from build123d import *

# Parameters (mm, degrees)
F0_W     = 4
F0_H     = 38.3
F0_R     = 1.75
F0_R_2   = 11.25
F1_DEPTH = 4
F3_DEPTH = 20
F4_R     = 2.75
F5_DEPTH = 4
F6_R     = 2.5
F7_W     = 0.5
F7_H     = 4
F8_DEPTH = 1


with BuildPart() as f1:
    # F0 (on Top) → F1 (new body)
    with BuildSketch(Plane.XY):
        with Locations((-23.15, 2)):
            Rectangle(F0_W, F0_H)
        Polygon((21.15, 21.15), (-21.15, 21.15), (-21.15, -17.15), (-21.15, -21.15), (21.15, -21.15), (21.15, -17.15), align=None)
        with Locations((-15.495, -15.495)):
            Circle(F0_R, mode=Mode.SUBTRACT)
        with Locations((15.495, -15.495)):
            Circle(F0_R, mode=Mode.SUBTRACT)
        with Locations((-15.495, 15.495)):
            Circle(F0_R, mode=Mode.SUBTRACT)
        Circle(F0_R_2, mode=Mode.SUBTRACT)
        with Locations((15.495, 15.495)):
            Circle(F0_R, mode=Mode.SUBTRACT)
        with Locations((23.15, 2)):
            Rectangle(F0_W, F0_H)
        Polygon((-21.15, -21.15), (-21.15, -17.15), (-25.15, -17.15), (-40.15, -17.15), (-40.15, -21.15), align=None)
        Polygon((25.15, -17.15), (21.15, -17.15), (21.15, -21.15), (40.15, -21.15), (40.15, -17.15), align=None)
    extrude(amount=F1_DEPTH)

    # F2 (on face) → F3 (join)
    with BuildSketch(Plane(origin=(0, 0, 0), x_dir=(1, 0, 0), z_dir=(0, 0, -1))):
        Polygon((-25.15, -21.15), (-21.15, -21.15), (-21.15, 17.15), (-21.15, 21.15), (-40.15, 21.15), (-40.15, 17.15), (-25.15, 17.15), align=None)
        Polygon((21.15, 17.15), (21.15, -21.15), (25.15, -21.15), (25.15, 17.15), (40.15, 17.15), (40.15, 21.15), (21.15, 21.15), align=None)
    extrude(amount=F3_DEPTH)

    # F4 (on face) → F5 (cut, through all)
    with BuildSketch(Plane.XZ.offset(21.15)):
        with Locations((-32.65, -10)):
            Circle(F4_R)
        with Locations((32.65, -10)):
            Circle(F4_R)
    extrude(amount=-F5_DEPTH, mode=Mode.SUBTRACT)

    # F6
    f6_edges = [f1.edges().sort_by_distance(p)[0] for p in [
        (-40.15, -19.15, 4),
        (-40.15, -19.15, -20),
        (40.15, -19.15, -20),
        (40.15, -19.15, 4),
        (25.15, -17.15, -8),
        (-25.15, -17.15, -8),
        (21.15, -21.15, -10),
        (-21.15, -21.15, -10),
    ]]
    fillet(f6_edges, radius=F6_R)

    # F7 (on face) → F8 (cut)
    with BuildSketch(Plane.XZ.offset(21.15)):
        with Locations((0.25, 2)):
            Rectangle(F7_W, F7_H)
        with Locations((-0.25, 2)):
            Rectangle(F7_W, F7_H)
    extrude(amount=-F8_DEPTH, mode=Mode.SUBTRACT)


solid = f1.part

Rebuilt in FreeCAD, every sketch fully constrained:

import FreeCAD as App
import Part
import Sketcher


def edges_at(feature, points):
    """Names of the edges that pass closest to the given points."""
    edges = feature.Shape.Edges
    near = lambda p: min(range(len(edges)), key=lambda i: edges[i].distToShape(Part.Vertex(*p))[0])
    return sorted({f"Edge{near(p) + 1}" for p in points})


def add_polygon(sketch, points):
    """Adds a closed chain of lines whose ends are joined by coincident constraints."""
    first, n = sketch.GeometryCount, len(points)
    for a, b in zip(points, points[1:] + points[:1]):
        sketch.addGeometry(Part.LineSegment(App.Vector(*a, 0), App.Vector(*b, 0)), False)
    for i in range(n):
        sketch.addConstraint(Sketcher.Constraint("Coincident", first + i, 2, first + (i + 1) % n, 1))

doc = App.newDocument("Part")
params = doc.addObject("Spreadsheet::Sheet", "Params")
for row, (alias, value) in enumerate([
    ("sketch1_diameter", "3.5 mm"),
    ("sketch1_diameter2", "22.5 mm"),
    ("sketch1_width", "15 mm"),
    ("sketch1_height", "4 mm"),
    ("sketch1_width2", "80.3 mm"),
    ("pad1_length", "4 mm"),
    ("sketch2_width", "4 mm"),
    ("sketch2_width2", "19 mm"),
    ("sketch2_height", "42.3 mm"),
    ("pad2_length", "20 mm"),
    ("sketch3_diameter", "5.5 mm"),
    ("fillet_radius", "2.5 mm"),
    ("sketch4_width", "1 mm"),
    ("sketch4_height", "4 mm"),
    ("pocket2_length", "1 mm"),
], start=1):
    params.set(f"A{row}", alias)
    params.set(f"B{row}", "=" + value)
    params.setAlias(f"B{row}", alias)

body = doc.addObject("PartDesign::Body", "Body")

# Sketch on XY plane
sketch1 = body.newObject("Sketcher::SketchObject", "Sketch")
sketch1.AttachmentSupport = (doc.getObject("XY_Plane"), [""])
sketch1.MapMode = "FlatFace"
add_polygon(sketch1, [(-25.15, 21.15), (-25.15, -17.15), (-40.15, -17.15), (-40.15, -21.15), (40.15, -21.15), (40.15, -17.15), (25.15, -17.15), (25.15, 21.15)])  # lines 0-7
sketch1.addGeometry(Part.Circle(App.Vector(-15.495, -15.495, 0), App.Vector(0, 0, 1), 1.75), False)  # 8
sketch1.addGeometry(Part.Circle(App.Vector(15.495, -15.495, 0), App.Vector(0, 0, 1), 1.75), False)  # 9
sketch1.addGeometry(Part.Circle(App.Vector(-15.495, 15.495, 0), App.Vector(0, 0, 1), 1.75), False)  # 10
sketch1.addGeometry(Part.Circle(App.Vector(0, 0, 0), App.Vector(0, 0, 1), 11.25), False)  # 11
sketch1.addGeometry(Part.Circle(App.Vector(15.495, 15.495, 0), App.Vector(0, 0, 1), 1.75), False)  # 12
sketch1.addConstraint([
    Sketcher.Constraint("Vertical", 0),
    Sketcher.Constraint("Horizontal", 1),
    Sketcher.Constraint("Vertical", 2),
    Sketcher.Constraint("Horizontal", 3),
    Sketcher.Constraint("Vertical", 4),
    Sketcher.Constraint("Horizontal", 5),
    Sketcher.Constraint("Vertical", 6),
    Sketcher.Constraint("Horizontal", 7),
    Sketcher.Constraint("Coincident", 11, 3, -1, 1),
    Sketcher.Constraint("Equal", 8, 9),
    Sketcher.Constraint("Equal", 9, 10),
    Sketcher.Constraint("Equal", 10, 12),
    Sketcher.Constraint("Symmetric", 9, 3, 10, 3, -1, 1),
    Sketcher.Constraint("Symmetric", 8, 3, 12, 3, -1, 1),
    Sketcher.Constraint("Symmetric", 8, 3, 9, 3, -2),
    Sketcher.Constraint("Symmetric", 1, 2, 4, 2, -2),
    Sketcher.Constraint("Equal", 1, 5),
    Sketcher.Constraint("Diameter", 8, 3.5),
    Sketcher.Constraint("Diameter", 11, 22.5),
    Sketcher.Constraint("DistanceX", 1, 2, 1, 1, 15.0),
    Sketcher.Constraint("DistanceY", 2, 2, 2, 1, 4.0),
    Sketcher.Constraint("DistanceX", 3, 1, 3, 2, 80.3),
    Sketcher.Constraint("DistanceY", 0, 2, 0, 1, 38.3),
    Sketcher.Constraint("DistanceY", 0, 2, -1, 1, 17.15),
    Sketcher.Constraint("DistanceX", 8, 3, 9, 3, 30.99),
    Sketcher.Constraint("DistanceY", 8, 3, 10, 3, 30.99),
])
sketch1.setExpression("Constraints[25]", "Params.sketch1_diameter")
sketch1.setExpression("Constraints[26]", "Params.sketch1_diameter2")
sketch1.setExpression("Constraints[27]", "Params.sketch1_width")
sketch1.setExpression("Constraints[28]", "Params.sketch1_height")
sketch1.setExpression("Constraints[29]", "Params.sketch1_width2")
pad1 = body.newObject("PartDesign::Pad", "Pad")
pad1.Profile = sketch1
pad1.setExpression("Length", "Params.pad1_length")

# Sketch on XY plane
sketch2 = body.newObject("Sketcher::SketchObject", "Sketch001")
sketch2.AttachmentSupport = (doc.getObject("XY_Plane"), [""])
sketch2.MapMode = "FlatFace"
add_polygon(sketch2, [(-25.15, 21.15), (-21.15, 21.15), (-21.15, -21.15), (-40.15, -21.15), (-40.15, -17.15), (-25.15, -17.15)])  # lines 0-5
add_polygon(sketch2, [(21.15, 21.15), (25.15, 21.15), (25.15, -17.15), (40.15, -17.15), (40.15, -21.15), (21.15, -21.15)])  # lines 6-11
sketch2.addConstraint([
    Sketcher.Constraint("Horizontal", 0),
    Sketcher.Constraint("Vertical", 1),
    Sketcher.Constraint("Horizontal", 2),
    Sketcher.Constraint("Vertical", 3),
    Sketcher.Constraint("Horizontal", 4),
    Sketcher.Constraint("Vertical", 5),
    Sketcher.Constraint("Horizontal", 6),
    Sketcher.Constraint("Vertical", 7),
    Sketcher.Constraint("Horizontal", 8),
    Sketcher.Constraint("Vertical", 9),
    Sketcher.Constraint("Horizontal", 10),
    Sketcher.Constraint("Vertical", 11),
    Sketcher.Constraint("Symmetric", 0, 2, 10, 2, -1, 1),
    Sketcher.Constraint("Symmetric", 5, 2, 6, 2, -2),
    Sketcher.Constraint("Symmetric", 3, 2, 8, 2, -2),
    Sketcher.Constraint("Horizontal", 2, 2, 9, 2),
    Sketcher.Constraint("Equal", 6, 3),
    Sketcher.Constraint("DistanceX", 0, 1, 0, 2, 4.0),
    Sketcher.Constraint("DistanceX", 2, 2, 2, 1, 19.0),
    Sketcher.Constraint("DistanceY", 1, 2, 1, 1, 42.3),
    Sketcher.Constraint("DistanceX", 0, 2, 6, 2, 46.3),
])
sketch2.setExpression("Constraints[29]", "Params.sketch2_width")
sketch2.setExpression("Constraints[30]", "Params.sketch2_width2")
sketch2.setExpression("Constraints[31]", "Params.sketch2_height")
pad2 = body.newObject("PartDesign::Pad", "Pad001")
pad2.Profile = sketch2
pad2.setExpression("Length", "Params.pad2_length")
pad2.Reversed = True

# Sketch on XZ plane
sketch3 = body.newObject("Sketcher::SketchObject", "Sketch002")
sketch3.AttachmentSupport = (doc.getObject("XZ_Plane"), [""])
sketch3.MapMode = "FlatFace"
sketch3.AttachmentOffset = App.Placement(App.Vector(0, 0, 21.15), App.Rotation())
sketch3.addGeometry([
    Part.Circle(App.Vector(-32.65, -10, 0), App.Vector(0, 0, 1), 2.75),
    Part.Circle(App.Vector(32.65, -10, 0), App.Vector(0, 0, 1), 2.75),
], False)
sketch3.addConstraint([
    Sketcher.Constraint("Equal", 0, 1),
    Sketcher.Constraint("Symmetric", 0, 3, 1, 3, -2),
    Sketcher.Constraint("Diameter", 0, 5.5),
    Sketcher.Constraint("DistanceY", 0, 3, -1, 1, 10.0),
    Sketcher.Constraint("DistanceX", 0, 3, 1, 3, 65.3),
])
sketch3.setExpression("Constraints[2]", "Params.sketch3_diameter")
pocket1 = body.newObject("PartDesign::Pocket", "Pocket")
pocket1.Profile = sketch3
pocket1.Type = "ThroughAll"
doc.recompute()

fillet = body.newObject("PartDesign::Fillet", "Fillet")
fillet.Base = (pocket1, edges_at(pocket1, [
    (-40.15, -19.15, 4),
    (-40.15, -19.15, -20),
    (40.15, -19.15, -20),
    (40.15, -19.15, 4),
    (25.15, -17.15, -8),
    (-25.15, -17.15, -8),
    (21.15, -21.15, -10),
    (-21.15, -21.15, -10),
]))
fillet.setExpression("Radius", "Params.fillet_radius")

# Sketch on XZ plane
sketch4 = body.newObject("Sketcher::SketchObject", "Sketch003")
sketch4.AttachmentSupport = (doc.getObject("XZ_Plane"), [""])
sketch4.MapMode = "FlatFace"
sketch4.AttachmentOffset = App.Placement(App.Vector(0, 0, 21.15), App.Rotation())
add_polygon(sketch4, [(0.5, 0), (0.5, 4), (-0.5, 4), (-0.5, 0)])  # lines 0-3
sketch4.addConstraint([
    Sketcher.Constraint("Vertical", 0),
    Sketcher.Constraint("Horizontal", 1),
    Sketcher.Constraint("Vertical", 2),
    Sketcher.Constraint("Horizontal", 3),
    Sketcher.Constraint("Symmetric", 2, 2, 3, 2, -1, 1),
    Sketcher.Constraint("DistanceX", 1, 2, 1, 1, 1.0),
    Sketcher.Constraint("DistanceY", 0, 1, 0, 2, 4.0),
])
sketch4.setExpression("Constraints[9]", "Params.sketch4_width")
sketch4.setExpression("Constraints[10]", "Params.sketch4_height")
pocket2 = body.newObject("PartDesign::Pocket", "Pocket001")
pocket2.Profile = sketch4
pocket2.setExpression("Length", "Params.pocket2_length")

doc.recompute()
